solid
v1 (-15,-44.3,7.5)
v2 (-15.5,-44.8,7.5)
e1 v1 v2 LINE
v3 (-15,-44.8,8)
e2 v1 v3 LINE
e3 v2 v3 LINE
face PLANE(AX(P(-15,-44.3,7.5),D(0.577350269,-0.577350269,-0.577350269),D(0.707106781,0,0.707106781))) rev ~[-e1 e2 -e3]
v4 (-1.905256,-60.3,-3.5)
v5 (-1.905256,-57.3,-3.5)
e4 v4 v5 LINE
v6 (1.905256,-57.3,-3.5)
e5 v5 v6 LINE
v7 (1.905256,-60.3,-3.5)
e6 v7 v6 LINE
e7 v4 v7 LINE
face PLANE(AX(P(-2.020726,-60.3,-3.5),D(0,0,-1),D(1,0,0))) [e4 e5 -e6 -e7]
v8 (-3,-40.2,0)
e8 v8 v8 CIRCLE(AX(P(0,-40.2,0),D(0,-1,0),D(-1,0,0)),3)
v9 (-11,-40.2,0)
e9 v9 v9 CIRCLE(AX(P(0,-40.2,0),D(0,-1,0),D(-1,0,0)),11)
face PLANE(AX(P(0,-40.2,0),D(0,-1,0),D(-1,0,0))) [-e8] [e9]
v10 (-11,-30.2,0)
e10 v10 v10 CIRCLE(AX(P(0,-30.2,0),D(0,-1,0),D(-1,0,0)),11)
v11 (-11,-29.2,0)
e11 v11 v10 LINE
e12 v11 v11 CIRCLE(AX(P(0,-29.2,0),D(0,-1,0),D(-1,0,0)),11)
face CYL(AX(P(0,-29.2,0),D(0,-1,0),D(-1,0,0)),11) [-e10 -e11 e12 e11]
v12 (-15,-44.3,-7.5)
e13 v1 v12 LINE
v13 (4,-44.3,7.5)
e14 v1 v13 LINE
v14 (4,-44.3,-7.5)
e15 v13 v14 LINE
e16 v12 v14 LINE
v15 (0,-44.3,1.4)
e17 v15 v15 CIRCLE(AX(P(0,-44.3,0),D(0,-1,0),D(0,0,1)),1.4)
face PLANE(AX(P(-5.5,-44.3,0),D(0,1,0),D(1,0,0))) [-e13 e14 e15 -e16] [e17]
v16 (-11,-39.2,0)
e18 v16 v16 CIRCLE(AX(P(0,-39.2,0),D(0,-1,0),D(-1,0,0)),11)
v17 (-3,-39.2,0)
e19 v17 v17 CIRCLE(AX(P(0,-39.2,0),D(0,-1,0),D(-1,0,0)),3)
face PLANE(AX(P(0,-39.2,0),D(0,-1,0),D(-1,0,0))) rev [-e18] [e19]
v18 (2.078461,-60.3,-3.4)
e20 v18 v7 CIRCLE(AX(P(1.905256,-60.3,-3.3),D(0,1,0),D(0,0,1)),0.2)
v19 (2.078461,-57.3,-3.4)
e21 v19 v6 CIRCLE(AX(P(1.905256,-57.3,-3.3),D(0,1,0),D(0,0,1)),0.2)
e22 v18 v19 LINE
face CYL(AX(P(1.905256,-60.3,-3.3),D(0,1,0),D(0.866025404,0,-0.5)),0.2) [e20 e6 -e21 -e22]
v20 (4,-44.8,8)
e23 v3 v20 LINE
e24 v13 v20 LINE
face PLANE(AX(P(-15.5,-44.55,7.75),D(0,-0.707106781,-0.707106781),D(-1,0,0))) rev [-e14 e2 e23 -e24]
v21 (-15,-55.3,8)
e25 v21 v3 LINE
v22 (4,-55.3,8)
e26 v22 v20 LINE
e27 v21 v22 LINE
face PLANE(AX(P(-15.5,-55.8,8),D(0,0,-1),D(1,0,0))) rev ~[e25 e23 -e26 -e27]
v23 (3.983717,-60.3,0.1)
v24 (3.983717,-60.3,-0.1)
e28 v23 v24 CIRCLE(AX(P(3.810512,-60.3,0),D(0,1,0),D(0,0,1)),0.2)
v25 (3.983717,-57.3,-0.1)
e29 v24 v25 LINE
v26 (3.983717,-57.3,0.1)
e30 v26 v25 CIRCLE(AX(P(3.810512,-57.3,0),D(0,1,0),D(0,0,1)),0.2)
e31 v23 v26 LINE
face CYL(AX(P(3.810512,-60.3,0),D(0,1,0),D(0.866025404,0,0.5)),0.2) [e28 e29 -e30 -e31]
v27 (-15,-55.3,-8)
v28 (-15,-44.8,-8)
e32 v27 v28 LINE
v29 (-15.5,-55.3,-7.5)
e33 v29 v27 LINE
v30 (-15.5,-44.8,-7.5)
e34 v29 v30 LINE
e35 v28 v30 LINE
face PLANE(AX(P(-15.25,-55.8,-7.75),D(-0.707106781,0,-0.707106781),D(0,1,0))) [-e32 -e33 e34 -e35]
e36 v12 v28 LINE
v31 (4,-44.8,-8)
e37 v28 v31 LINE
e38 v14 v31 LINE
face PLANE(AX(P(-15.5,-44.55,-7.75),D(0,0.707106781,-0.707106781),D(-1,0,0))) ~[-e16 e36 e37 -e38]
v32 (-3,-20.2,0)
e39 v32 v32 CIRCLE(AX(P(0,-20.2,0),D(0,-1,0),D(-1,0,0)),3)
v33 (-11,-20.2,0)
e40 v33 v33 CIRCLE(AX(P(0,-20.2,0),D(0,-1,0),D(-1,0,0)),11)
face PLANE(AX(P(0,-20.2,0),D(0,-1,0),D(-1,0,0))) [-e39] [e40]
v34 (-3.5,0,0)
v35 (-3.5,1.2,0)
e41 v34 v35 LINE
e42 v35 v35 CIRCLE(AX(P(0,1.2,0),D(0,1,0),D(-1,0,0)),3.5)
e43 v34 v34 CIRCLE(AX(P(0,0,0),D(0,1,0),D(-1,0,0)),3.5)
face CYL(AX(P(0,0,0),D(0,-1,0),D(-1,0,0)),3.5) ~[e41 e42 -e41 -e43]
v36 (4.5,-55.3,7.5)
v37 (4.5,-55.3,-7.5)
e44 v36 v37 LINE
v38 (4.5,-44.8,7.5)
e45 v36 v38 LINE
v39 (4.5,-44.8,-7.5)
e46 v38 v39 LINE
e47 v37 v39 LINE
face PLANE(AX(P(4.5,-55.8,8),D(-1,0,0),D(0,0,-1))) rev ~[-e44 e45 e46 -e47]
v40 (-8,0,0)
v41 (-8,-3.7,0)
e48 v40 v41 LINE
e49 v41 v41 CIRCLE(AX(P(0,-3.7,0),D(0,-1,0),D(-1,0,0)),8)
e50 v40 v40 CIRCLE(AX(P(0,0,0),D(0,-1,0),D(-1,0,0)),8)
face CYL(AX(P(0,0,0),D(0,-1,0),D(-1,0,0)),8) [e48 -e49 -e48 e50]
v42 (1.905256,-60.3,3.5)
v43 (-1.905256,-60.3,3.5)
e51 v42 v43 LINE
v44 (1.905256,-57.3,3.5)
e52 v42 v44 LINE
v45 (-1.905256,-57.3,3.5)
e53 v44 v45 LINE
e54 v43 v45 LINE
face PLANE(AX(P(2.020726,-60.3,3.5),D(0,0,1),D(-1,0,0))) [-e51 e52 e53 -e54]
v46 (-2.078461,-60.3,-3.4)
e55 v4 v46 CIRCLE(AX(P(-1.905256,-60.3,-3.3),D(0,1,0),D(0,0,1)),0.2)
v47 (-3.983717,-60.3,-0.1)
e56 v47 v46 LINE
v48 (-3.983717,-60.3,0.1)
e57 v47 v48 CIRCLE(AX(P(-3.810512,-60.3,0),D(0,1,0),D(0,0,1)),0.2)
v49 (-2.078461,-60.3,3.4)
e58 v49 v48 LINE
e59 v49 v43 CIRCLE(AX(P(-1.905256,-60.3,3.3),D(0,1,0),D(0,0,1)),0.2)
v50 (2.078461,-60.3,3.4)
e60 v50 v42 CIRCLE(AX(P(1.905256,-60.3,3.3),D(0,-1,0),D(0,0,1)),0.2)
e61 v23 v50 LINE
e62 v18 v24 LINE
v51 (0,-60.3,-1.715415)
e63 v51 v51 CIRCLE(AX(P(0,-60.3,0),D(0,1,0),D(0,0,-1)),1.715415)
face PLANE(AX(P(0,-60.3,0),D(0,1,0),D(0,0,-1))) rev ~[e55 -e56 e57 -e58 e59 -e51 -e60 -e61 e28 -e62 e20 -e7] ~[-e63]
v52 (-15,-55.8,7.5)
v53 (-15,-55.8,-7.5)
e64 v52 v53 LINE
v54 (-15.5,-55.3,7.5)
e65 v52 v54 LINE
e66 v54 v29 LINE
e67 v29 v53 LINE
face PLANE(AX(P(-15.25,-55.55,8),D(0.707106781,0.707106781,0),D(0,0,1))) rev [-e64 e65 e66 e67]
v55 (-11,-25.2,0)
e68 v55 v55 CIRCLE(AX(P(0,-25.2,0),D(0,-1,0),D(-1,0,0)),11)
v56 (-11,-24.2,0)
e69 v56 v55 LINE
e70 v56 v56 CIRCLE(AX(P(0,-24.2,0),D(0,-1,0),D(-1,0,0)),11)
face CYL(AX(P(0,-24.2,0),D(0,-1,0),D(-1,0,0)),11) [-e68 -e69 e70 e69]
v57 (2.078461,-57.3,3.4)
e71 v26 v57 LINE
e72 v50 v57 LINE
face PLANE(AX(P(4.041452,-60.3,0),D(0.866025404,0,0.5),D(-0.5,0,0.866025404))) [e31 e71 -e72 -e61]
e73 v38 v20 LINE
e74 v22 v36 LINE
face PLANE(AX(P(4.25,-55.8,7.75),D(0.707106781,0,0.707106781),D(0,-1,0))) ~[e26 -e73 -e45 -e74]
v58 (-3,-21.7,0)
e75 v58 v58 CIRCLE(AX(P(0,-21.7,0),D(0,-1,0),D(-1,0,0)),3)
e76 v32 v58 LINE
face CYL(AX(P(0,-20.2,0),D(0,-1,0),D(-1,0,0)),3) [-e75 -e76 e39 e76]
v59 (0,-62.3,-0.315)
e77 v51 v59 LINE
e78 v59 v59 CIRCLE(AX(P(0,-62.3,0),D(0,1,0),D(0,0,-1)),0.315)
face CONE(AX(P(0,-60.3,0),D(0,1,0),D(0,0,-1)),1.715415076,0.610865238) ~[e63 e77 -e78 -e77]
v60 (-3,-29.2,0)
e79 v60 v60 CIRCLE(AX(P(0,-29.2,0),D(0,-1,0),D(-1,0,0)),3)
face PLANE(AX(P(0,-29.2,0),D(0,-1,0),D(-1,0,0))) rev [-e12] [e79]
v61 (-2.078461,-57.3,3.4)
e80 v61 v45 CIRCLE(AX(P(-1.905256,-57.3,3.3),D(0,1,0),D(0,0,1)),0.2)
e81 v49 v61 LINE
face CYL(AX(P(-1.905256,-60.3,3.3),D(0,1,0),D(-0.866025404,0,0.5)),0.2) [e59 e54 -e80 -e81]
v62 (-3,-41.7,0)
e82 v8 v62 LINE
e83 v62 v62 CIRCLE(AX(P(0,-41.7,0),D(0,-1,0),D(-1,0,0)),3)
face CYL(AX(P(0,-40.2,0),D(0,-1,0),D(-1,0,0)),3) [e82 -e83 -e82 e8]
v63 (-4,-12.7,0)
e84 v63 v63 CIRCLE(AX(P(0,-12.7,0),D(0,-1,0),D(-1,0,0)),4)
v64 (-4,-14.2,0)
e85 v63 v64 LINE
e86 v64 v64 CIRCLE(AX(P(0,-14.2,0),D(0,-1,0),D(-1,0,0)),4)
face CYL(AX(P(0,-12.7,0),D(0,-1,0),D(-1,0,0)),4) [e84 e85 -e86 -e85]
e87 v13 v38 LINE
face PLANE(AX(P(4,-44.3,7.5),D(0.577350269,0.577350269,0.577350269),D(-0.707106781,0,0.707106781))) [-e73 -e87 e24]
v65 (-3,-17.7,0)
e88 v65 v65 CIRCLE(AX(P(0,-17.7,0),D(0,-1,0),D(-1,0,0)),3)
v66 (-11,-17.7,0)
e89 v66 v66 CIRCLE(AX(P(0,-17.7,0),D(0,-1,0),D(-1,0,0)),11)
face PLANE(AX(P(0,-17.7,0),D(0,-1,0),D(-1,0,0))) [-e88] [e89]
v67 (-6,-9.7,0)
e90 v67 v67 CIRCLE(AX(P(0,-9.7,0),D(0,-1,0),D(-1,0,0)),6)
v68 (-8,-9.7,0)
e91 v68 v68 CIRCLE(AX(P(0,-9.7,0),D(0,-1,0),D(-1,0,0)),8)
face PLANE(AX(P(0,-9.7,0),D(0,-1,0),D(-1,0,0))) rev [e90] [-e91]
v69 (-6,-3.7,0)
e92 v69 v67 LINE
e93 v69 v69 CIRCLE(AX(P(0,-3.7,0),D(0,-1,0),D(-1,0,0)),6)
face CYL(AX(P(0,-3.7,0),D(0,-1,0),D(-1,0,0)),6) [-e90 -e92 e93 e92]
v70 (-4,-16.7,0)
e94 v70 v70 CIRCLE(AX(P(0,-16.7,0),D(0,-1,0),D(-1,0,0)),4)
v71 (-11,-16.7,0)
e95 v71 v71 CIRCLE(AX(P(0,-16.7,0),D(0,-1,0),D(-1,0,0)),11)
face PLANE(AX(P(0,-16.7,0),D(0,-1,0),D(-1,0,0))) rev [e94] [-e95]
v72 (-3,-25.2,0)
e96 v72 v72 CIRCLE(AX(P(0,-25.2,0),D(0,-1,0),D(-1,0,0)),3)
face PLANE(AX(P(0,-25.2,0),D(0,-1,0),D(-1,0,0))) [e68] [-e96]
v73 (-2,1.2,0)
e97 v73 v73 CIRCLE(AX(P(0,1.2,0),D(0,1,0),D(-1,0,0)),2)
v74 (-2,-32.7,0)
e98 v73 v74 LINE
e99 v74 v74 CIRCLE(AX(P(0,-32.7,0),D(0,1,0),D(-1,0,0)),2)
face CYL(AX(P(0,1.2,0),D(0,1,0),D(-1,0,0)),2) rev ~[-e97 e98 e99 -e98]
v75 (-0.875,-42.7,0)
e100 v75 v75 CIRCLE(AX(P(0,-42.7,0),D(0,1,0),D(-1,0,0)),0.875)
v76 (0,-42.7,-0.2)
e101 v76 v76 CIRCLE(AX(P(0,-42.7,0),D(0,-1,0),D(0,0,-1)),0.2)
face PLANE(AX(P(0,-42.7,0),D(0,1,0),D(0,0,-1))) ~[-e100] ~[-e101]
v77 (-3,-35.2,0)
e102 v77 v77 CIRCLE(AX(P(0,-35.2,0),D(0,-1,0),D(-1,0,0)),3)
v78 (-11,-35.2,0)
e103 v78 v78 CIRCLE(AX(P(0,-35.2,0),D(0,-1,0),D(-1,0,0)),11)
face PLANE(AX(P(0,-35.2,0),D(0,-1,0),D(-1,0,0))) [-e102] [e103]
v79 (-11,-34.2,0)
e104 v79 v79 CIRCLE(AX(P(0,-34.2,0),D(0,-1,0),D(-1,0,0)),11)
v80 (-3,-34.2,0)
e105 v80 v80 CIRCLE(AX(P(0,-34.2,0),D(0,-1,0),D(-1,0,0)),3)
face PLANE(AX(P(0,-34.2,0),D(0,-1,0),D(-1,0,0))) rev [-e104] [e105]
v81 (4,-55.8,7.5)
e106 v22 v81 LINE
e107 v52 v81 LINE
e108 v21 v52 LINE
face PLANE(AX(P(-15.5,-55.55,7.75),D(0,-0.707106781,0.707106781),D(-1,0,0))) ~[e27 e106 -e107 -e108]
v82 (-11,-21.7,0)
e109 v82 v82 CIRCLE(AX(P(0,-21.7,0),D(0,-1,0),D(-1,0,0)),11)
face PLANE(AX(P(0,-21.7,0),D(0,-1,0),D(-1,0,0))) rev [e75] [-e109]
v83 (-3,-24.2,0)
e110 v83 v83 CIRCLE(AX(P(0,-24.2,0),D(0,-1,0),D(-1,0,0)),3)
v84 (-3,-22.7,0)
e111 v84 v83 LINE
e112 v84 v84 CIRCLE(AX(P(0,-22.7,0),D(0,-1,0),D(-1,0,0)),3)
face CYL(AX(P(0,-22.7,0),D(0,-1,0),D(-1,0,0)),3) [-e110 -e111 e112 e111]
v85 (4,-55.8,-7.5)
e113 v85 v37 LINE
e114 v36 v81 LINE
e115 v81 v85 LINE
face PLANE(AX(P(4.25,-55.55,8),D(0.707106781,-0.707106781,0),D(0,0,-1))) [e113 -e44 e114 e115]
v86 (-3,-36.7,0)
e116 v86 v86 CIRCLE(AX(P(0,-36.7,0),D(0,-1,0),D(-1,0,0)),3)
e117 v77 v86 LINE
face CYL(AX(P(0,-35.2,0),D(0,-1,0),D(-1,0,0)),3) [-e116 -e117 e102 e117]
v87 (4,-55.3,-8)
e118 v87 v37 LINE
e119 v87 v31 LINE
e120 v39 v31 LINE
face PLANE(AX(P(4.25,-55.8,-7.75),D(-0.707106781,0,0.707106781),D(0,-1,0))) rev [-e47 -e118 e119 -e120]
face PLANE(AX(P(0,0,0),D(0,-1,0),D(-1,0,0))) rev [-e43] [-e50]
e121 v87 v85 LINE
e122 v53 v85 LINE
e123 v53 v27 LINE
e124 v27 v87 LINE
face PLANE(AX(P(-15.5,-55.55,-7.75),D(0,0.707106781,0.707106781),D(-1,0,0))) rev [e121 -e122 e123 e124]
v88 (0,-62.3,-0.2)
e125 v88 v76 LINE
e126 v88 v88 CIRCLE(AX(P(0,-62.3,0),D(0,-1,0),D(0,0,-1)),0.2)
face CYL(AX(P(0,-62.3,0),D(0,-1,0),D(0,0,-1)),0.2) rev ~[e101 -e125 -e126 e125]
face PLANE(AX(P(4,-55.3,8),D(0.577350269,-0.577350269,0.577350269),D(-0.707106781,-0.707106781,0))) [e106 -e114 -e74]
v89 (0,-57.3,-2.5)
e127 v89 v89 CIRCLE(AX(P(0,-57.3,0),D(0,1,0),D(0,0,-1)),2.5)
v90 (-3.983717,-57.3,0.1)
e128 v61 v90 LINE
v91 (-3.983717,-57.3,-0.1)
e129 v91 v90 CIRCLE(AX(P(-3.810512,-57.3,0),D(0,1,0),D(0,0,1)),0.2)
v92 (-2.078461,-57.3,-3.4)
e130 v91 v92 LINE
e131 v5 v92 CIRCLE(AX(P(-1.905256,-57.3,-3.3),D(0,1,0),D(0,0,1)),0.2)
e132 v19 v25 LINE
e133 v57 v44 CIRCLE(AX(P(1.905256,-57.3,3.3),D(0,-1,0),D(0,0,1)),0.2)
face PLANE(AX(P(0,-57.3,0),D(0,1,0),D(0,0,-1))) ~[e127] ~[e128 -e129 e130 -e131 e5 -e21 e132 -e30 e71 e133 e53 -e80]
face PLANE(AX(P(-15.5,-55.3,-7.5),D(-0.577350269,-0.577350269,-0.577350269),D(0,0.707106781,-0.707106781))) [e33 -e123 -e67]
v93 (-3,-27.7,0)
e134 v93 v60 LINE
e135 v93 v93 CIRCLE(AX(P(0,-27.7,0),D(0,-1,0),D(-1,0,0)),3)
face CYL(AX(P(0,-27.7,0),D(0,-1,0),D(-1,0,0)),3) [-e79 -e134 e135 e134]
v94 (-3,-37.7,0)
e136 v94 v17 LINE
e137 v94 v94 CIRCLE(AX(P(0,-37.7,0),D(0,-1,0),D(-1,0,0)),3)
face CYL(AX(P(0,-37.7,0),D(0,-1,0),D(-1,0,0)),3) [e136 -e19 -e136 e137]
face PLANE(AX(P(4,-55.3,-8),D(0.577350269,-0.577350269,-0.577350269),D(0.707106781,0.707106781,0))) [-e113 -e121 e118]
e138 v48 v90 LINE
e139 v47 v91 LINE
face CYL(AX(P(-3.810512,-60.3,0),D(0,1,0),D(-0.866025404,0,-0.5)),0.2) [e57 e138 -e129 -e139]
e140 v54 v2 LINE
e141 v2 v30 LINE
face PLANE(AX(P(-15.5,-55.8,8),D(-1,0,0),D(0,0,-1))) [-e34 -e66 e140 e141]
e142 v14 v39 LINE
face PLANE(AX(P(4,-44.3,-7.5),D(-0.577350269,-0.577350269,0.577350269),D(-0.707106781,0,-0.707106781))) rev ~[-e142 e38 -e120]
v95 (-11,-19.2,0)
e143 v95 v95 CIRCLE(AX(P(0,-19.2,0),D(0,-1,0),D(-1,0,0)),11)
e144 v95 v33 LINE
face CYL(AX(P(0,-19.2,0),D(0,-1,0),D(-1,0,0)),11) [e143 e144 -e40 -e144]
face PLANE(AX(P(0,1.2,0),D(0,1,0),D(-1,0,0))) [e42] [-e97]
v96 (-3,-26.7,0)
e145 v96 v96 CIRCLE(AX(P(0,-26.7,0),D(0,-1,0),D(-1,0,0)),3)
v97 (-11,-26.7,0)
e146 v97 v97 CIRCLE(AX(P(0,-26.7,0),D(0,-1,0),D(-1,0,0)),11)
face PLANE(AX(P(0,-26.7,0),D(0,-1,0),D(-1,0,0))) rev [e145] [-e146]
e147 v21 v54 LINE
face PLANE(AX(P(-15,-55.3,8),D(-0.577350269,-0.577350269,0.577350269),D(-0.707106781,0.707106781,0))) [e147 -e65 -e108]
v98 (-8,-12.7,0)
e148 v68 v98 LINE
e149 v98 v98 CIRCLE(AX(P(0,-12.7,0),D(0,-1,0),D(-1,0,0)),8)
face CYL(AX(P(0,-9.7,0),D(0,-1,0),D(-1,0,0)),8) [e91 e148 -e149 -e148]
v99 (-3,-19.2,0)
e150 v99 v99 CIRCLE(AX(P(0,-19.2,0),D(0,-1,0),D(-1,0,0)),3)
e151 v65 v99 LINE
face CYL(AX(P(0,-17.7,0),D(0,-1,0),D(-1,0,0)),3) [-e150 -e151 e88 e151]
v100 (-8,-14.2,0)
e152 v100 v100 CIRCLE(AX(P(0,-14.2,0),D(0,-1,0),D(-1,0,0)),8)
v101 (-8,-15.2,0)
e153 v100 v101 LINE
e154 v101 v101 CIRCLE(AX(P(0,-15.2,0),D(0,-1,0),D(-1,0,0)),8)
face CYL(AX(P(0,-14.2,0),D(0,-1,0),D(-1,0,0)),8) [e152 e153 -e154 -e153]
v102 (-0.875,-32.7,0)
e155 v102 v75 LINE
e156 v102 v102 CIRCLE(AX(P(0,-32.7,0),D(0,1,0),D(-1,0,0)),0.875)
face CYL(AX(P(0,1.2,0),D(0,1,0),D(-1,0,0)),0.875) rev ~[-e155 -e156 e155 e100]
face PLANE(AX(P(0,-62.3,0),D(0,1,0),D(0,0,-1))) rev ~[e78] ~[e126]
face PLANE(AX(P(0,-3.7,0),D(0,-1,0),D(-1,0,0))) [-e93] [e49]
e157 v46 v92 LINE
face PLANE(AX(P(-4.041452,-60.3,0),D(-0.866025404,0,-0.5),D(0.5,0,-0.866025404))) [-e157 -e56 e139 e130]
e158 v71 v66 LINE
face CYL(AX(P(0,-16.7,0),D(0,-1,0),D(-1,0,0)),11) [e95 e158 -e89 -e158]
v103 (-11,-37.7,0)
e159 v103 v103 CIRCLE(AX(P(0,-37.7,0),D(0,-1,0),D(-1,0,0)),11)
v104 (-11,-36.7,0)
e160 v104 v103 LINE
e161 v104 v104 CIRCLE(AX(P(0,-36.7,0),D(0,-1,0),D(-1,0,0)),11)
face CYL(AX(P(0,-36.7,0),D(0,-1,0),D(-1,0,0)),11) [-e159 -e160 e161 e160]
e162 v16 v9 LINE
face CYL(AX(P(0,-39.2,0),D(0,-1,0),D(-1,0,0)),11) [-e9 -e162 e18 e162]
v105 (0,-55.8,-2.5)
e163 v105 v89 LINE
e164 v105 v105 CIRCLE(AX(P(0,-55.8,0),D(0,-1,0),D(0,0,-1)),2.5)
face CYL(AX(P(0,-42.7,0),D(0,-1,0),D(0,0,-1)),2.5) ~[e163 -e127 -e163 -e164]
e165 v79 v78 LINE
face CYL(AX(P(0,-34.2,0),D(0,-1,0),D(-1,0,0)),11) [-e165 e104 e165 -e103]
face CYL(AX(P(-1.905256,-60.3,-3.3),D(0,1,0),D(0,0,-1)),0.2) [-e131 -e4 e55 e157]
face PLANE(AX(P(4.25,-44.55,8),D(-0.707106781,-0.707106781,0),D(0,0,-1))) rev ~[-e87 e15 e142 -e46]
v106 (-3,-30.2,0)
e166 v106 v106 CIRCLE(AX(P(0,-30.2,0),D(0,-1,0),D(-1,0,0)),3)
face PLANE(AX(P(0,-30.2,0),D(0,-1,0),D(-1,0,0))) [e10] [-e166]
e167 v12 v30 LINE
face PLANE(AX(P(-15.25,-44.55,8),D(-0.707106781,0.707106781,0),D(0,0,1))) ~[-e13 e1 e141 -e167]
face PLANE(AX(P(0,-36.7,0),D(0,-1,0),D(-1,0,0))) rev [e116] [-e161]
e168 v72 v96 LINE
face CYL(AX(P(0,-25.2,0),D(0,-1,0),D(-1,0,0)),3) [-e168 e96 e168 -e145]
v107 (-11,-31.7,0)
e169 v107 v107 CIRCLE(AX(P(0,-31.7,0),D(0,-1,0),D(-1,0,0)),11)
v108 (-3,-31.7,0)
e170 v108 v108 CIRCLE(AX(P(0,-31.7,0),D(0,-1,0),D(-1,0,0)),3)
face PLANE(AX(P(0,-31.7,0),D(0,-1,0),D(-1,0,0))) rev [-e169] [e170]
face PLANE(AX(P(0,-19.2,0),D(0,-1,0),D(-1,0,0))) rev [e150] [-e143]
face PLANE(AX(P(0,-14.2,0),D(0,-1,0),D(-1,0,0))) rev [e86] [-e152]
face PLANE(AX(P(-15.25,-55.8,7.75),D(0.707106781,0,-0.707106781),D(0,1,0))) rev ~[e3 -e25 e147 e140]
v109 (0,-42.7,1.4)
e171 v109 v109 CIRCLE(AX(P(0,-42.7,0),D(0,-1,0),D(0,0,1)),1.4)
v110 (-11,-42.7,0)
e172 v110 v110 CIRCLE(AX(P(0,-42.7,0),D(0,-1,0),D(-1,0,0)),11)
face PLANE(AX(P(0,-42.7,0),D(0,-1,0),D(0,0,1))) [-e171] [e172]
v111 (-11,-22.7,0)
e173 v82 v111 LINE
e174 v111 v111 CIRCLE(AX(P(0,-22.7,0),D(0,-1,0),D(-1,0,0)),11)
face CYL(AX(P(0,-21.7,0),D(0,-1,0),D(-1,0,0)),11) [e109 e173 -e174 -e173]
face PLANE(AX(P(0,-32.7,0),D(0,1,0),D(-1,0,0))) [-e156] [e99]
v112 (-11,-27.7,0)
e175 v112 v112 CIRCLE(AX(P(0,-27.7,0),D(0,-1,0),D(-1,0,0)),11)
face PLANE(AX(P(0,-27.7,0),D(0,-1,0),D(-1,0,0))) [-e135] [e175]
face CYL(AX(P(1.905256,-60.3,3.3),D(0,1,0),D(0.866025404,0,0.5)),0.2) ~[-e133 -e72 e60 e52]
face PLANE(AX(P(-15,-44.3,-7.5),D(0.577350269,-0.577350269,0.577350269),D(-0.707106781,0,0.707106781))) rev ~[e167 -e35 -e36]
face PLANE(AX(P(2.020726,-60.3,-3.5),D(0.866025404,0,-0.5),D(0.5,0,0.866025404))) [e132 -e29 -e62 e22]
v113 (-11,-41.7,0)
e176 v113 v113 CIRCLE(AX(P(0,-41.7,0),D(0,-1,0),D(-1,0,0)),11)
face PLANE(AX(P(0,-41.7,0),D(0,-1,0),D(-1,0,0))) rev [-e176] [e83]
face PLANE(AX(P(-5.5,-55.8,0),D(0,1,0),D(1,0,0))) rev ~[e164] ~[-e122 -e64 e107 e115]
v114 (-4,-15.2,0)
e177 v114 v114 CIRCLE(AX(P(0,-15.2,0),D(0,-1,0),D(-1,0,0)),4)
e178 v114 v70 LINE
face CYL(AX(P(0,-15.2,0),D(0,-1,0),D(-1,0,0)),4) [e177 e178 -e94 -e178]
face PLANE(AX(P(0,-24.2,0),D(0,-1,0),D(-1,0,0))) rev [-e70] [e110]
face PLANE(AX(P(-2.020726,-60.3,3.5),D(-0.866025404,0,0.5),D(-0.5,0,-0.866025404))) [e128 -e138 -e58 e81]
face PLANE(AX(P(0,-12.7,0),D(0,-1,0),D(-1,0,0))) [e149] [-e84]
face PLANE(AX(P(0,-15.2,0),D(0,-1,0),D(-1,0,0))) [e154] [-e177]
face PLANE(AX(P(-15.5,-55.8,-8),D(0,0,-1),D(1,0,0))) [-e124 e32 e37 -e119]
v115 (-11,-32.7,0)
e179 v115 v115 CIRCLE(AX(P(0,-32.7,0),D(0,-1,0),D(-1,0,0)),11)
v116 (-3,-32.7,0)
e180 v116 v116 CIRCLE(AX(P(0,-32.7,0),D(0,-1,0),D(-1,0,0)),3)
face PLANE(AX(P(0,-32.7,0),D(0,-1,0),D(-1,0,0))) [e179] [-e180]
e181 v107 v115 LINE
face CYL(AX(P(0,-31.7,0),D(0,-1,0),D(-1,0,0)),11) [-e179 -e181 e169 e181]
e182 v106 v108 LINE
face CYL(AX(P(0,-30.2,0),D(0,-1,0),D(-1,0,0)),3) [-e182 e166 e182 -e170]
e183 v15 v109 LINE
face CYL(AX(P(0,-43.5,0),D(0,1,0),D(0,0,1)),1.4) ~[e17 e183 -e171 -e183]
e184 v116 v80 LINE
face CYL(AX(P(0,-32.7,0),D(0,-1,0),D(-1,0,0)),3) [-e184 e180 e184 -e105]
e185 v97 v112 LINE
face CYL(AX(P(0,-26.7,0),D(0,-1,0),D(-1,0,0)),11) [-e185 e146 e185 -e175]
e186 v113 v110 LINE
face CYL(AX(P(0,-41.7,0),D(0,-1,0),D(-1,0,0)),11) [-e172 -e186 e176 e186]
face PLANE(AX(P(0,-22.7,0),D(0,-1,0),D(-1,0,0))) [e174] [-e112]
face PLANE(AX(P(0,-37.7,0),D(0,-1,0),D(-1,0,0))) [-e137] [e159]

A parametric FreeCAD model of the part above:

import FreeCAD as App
import Part
import Sketcher
from FreeCAD import Vector
Q = App.Units.Quantity


def edges_at(feature, points):
    """Names of the edges that pass closest to the given points."""
    edges = feature.Shape.Edges
    near = lambda p: min(range(len(edges)), key=lambda i: edges[i].distToShape(Part.Vertex(*p))[0])
    return sorted({f"Edge{near(p) + 1}" for p in points})

doc = App.newDocument("Part")
body = doc.addObject("PartDesign::Body", "Body")

# Sketch on XY plane
sketch1 = body.newObject("Sketcher::SketchObject", "Sketch")
sketch1.AttachmentSupport = (doc.getObject("XY_Plane"), [""])
sketch1.MapMode = "FlatFace"
sketch1.addGeometry([
    Part.LineSegment(Vector(0, 0, 0), Vector(-8, 0, 0)),  # 0
    Part.LineSegment(Vector(-8, 0, 0), Vector(-8, -3.7, 0)),  # 1
    Part.LineSegment(Vector(-8, -3.7, 0), Vector(-6, -3.7, 0)),  # 2
    Part.LineSegment(Vector(-6, -3.7, 0), Vector(-6, -9.7, 0)),  # 3
    Part.LineSegment(Vector(-6, -9.7, 0), Vector(-8, -9.7, 0)),  # 4
    Part.LineSegment(Vector(-8, -9.7, 0), Vector(-8, -12.7, 0)),  # 5
    Part.LineSegment(Vector(-8, -12.7, 0), Vector(-4, -12.7, 0)),  # 6
    Part.LineSegment(Vector(-4, -12.7, 0), Vector(-4, -14.2, 0)),  # 7
    Part.LineSegment(Vector(-4, -14.2, 0), Vector(-8, -14.2, 0)),  # 8
    Part.LineSegment(Vector(-8, -14.2, 0), Vector(-8, -15.2, 0)),  # 9
    Part.LineSegment(Vector(-8, -15.2, 0), Vector(-4, -15.2, 0)),  # 10
    Part.LineSegment(Vector(-4, -15.2, 0), Vector(-4, -16.7, 0)),  # 11
    Part.LineSegment(Vector(-4, -16.7, 0), Vector(-11, -16.7, 0)),  # 12
    Part.LineSegment(Vector(-11, -16.7, 0), Vector(-11, -17.7, 0)),  # 13
    Part.LineSegment(Vector(-11, -17.7, 0), Vector(-3, -17.7, 0)),  # 14
    Part.LineSegment(Vector(-3, -17.7, 0), Vector(-3, -19.2, 0)),  # 15
    Part.LineSegment(Vector(-3, -19.2, 0), Vector(-11, -19.2, 0)),  # 16
    Part.LineSegment(Vector(-11, -19.2, 0), Vector(-11, -20.2, 0)),  # 17
    Part.LineSegment(Vector(-11, -20.2, 0), Vector(-3, -20.2, 0)),  # 18
    Part.LineSegment(Vector(-3, -20.2, 0), Vector(-3, -21.7, 0)),  # 19
    Part.LineSegment(Vector(-3, -21.7, 0), Vector(-11, -21.7, 0)),  # 20
    Part.LineSegment(Vector(-11, -21.7, 0), Vector(-11, -22.7, 0)),  # 21
    Part.LineSegment(Vector(-11, -22.7, 0), Vector(-3, -22.7, 0)),  # 22
    Part.LineSegment(Vector(-3, -22.7, 0), Vector(-3, -24.2, 0)),  # 23
    Part.LineSegment(Vector(-3, -24.2, 0), Vector(-11, -24.2, 0)),  # 24
    Part.LineSegment(Vector(-11, -24.2, 0), Vector(-11, -25.2, 0)),  # 25
    Part.LineSegment(Vector(-11, -25.2, 0), Vector(-3, -25.2, 0)),  # 26
    Part.LineSegment(Vector(-3, -25.2, 0), Vector(-3, -26.7, 0)),  # 27
    Part.LineSegment(Vector(-3, -26.7, 0), Vector(-11, -26.7, 0)),  # 28
    Part.LineSegment(Vector(-11, -26.7, 0), Vector(-11, -27.7, 0)),  # 29
    Part.LineSegment(Vector(-11, -27.7, 0), Vector(-3, -27.7, 0)),  # 30
    Part.LineSegment(Vector(-3, -27.7, 0), Vector(-3, -29.2, 0)),  # 31
    Part.LineSegment(Vector(-3, -29.2, 0), Vector(-11, -29.2, 0)),  # 32
    Part.LineSegment(Vector(-11, -29.2, 0), Vector(-11, -30.2, 0)),  # 33
    Part.LineSegment(Vector(-11, -30.2, 0), Vector(-3, -30.2, 0)),  # 34
    Part.LineSegment(Vector(-3, -30.2, 0), Vector(-3, -31.7, 0)),  # 35
    Part.LineSegment(Vector(-3, -31.7, 0), Vector(-11, -31.7, 0)),  # 36
    Part.LineSegment(Vector(-11, -31.7, 0), Vector(-11, -32.7, 0)),  # 37
    Part.LineSegment(Vector(-11, -32.7, 0), Vector(-3, -32.7, 0)),  # 38
    Part.LineSegment(Vector(-3, -32.7, 0), Vector(-3, -34.2, 0)),  # 39
    Part.LineSegment(Vector(-3, -34.2, 0), Vector(-11, -34.2, 0)),  # 40
    Part.LineSegment(Vector(-11, -34.2, 0), Vector(-11, -35.2, 0)),  # 41
    Part.LineSegment(Vector(-11, -35.2, 0), Vector(-3, -35.2, 0)),  # 42
    Part.LineSegment(Vector(-3, -35.2, 0), Vector(-3, -36.7, 0)),  # 43
    Part.LineSegment(Vector(-3, -36.7, 0), Vector(-11, -36.7, 0)),  # 44
    Part.LineSegment(Vector(-11, -36.7, 0), Vector(-11, -37.7, 0)),  # 45
    Part.LineSegment(Vector(-11, -37.7, 0), Vector(-3, -37.7, 0)),  # 46
    Part.LineSegment(Vector(-3, -37.7, 0), Vector(-3, -39.2, 0)),  # 47
    Part.LineSegment(Vector(-3, -39.2, 0), Vector(-11, -39.2, 0)),  # 48
    Part.LineSegment(Vector(-11, -39.2, 0), Vector(-11, -40.2, 0)),  # 49
    Part.LineSegment(Vector(-11, -40.2, 0), Vector(-3, -40.2, 0)),  # 50
    Part.LineSegment(Vector(-3, -40.2, 0), Vector(-3, -41.7, 0)),  # 51
    Part.LineSegment(Vector(-3, -41.7, 0), Vector(-11, -41.7, 0)),  # 52
    Part.LineSegment(Vector(-11, -41.7, 0), Vector(-11, -42.7, 0)),  # 53
    Part.LineSegment(Vector(-11, -42.7, 0), Vector(0, -42.7, 0)),  # 54
    Part.LineSegment(Vector(0, -42.7, 0), Vector(0, 0, 0)),  # 55
], False)
sketch1.addConstraint([
    Sketcher.Constraint("Coincident", 0, 2, 1, 1),
    Sketcher.Constraint("Coincident", 1, 2, 2, 1),
    Sketcher.Constraint("Coincident", 2, 2, 3, 1),
    Sketcher.Constraint("Coincident", 3, 2, 4, 1),
    Sketcher.Constraint("Coincident", 4, 2, 5, 1),
    Sketcher.Constraint("Coincident", 5, 2, 6, 1),
    Sketcher.Constraint("Coincident", 6, 2, 7, 1),
    Sketcher.Constraint("Coincident", 7, 2, 8, 1),
    Sketcher.Constraint("Coincident", 8, 2, 9, 1),
    Sketcher.Constraint("Coincident", 9, 2, 10, 1),
    Sketcher.Constraint("Coincident", 10, 2, 11, 1),
    Sketcher.Constraint("Coincident", 11, 2, 12, 1),
    Sketcher.Constraint("Coincident", 12, 2, 13, 1),
    Sketcher.Constraint("Coincident", 13, 2, 14, 1),
    Sketcher.Constraint("Coincident", 14, 2, 15, 1),
    Sketcher.Constraint("Coincident", 15, 2, 16, 1),
    Sketcher.Constraint("Coincident", 16, 2, 17, 1),
    Sketcher.Constraint("Coincident", 17, 2, 18, 1),
    Sketcher.Constraint("Coincident", 18, 2, 19, 1),
    Sketcher.Constraint("Coincident", 19, 2, 20, 1),
    Sketcher.Constraint("Coincident", 20, 2, 21, 1),
    Sketcher.Constraint("Coincident", 21, 2, 22, 1),
    Sketcher.Constraint("Coincident", 22, 2, 23, 1),
    Sketcher.Constraint("Coincident", 23, 2, 24, 1),
    Sketcher.Constraint("Coincident", 24, 2, 25, 1),
    Sketcher.Constraint("Coincident", 25, 2, 26, 1),
    Sketcher.Constraint("Coincident", 26, 2, 27, 1),
    Sketcher.Constraint("Coincident", 27, 2, 28, 1),
    Sketcher.Constraint("Coincident", 28, 2, 29, 1),
    Sketcher.Constraint("Coincident", 29, 2, 30, 1),
    Sketcher.Constraint("Coincident", 30, 2, 31, 1),
    Sketcher.Constraint("Coincident", 31, 2, 32, 1),
    Sketcher.Constraint("Coincident", 32, 2, 33, 1),
    Sketcher.Constraint("Coincident", 33, 2, 34, 1),
    Sketcher.Constraint("Coincident", 34, 2, 35, 1),
    Sketcher.Constraint("Coincident", 35, 2, 36, 1),
    Sketcher.Constraint("Coincident", 36, 2, 37, 1),
    Sketcher.Constraint("Coincident", 37, 2, 38, 1),
    Sketcher.Constraint("Coincident", 38, 2, 39, 1),
    Sketcher.Constraint("Coincident", 39, 2, 40, 1),
    Sketcher.Constraint("Coincident", 40, 2, 41, 1),
    Sketcher.Constraint("Coincident", 41, 2, 42, 1),
    Sketcher.Constraint("Coincident", 42, 2, 43, 1),
    Sketcher.Constraint("Coincident", 43, 2, 44, 1),
    Sketcher.Constraint("Coincident", 44, 2, 45, 1),
    Sketcher.Constraint("Coincident", 45, 2, 46, 1),
    Sketcher.Constraint("Coincident", 46, 2, 47, 1),
    Sketcher.Constraint("Coincident", 47, 2, 48, 1),
    Sketcher.Constraint("Coincident", 48, 2, 49, 1),
    Sketcher.Constraint("Coincident", 49, 2, 50, 1),
    Sketcher.Constraint("Coincident", 50, 2, 51, 1),
    Sketcher.Constraint("Coincident", 51, 2, 52, 1),
    Sketcher.Constraint("Coincident", 52, 2, 53, 1),
    Sketcher.Constraint("Coincident", 53, 2, 54, 1),
    Sketcher.Constraint("Coincident", 54, 2, 55, 1),
    Sketcher.Constraint("Coincident", 55, 2, 0, 1),
    Sketcher.Constraint("Horizontal", 0),
    Sketcher.Constraint("Vertical", 1),
    Sketcher.Constraint("Horizontal", 2),
    Sketcher.Constraint("Vertical", 3),
    Sketcher.Constraint("Horizontal", 4),
    Sketcher.Constraint("Vertical", 5),
    Sketcher.Constraint("Horizontal", 6),
    Sketcher.Constraint("Vertical", 7),
    Sketcher.Constraint("Horizontal", 8),
    Sketcher.Constraint("Vertical", 9),
    Sketcher.Constraint("Horizontal", 10),
    Sketcher.Constraint("Vertical", 11),
    Sketcher.Constraint("Horizontal", 12),
    Sketcher.Constraint("Vertical", 13),
    Sketcher.Constraint("Horizontal", 14),
    Sketcher.Constraint("Vertical", 15),
    Sketcher.Constraint("Horizontal", 16),
    Sketcher.Constraint("Vertical", 17),
    Sketcher.Constraint("Horizontal", 18),
    Sketcher.Constraint("Vertical", 19),
    Sketcher.Constraint("Horizontal", 20),
    Sketcher.Constraint("Vertical", 21),
    Sketcher.Constraint("Horizontal", 22),
    Sketcher.Constraint("Vertical", 23),
    Sketcher.Constraint("Horizontal", 24),
    Sketcher.Constraint("Vertical", 25),
    Sketcher.Constraint("Horizontal", 26),
    Sketcher.Constraint("Vertical", 27),
    Sketcher.Constraint("Horizontal", 28),
    Sketcher.Constraint("Vertical", 29),
    Sketcher.Constraint("Horizontal", 30),
    Sketcher.Constraint("Vertical", 31),
    Sketcher.Constraint("Horizontal", 32),
    Sketcher.Constraint("Vertical", 33),
    Sketcher.Constraint("Horizontal", 34),
    Sketcher.Constraint("Vertical", 35),
    Sketcher.Constraint("Horizontal", 36),
    Sketcher.Constraint("Vertical", 37),
    Sketcher.Constraint("Horizontal", 38),
    Sketcher.Constraint("Vertical", 39),
    Sketcher.Constraint("Horizontal", 40),
    Sketcher.Constraint("Vertical", 41),
    Sketcher.Constraint("Horizontal", 42),
    Sketcher.Constraint("Vertical", 43),
    Sketcher.Constraint("Horizontal", 44),
    Sketcher.Constraint("Vertical", 45),
    Sketcher.Constraint("Horizontal", 46),
    Sketcher.Constraint("Vertical", 47),
    Sketcher.Constraint("Horizontal", 48),
    Sketcher.Constraint("Vertical", 49),
    Sketcher.Constraint("Horizontal", 50),
    Sketcher.Constraint("Vertical", 51),
    Sketcher.Constraint("Horizontal", 52),
    Sketcher.Constraint("Vertical", 53),
    Sketcher.Constraint("Horizontal", 54),
    Sketcher.Constraint("Vertical", 55),
    Sketcher.Constraint("Coincident", 55, 2, -1, 1),
    Sketcher.Constraint("Vertical", 1, 2, 4, 2),
    Sketcher.Constraint("Vertical", 5, 2, 8, 2),
    Sketcher.Constraint("Vertical", 7, 2, 10, 2),
    Sketcher.Constraint("Vertical", 13, 2, 16, 2),
    Sketcher.Constraint("Vertical", 15, 2, 18, 2),
    Sketcher.Constraint("Vertical", 17, 2, 20, 2),
    Sketcher.Constraint("Vertical", 19, 2, 22, 2),
    Sketcher.Constraint("Vertical", 21, 2, 24, 2),
    Sketcher.Constraint("Vertical", 23, 2, 26, 2),
    Sketcher.Constraint("Vertical", 25, 2, 28, 2),
    Sketcher.Constraint("Vertical", 27, 2, 30, 2),
    Sketcher.Constraint("Vertical", 29, 2, 32, 2),
    Sketcher.Constraint("Vertical", 31, 2, 34, 2),
    Sketcher.Constraint("Vertical", 33, 2, 36, 2),
    Sketcher.Constraint("Vertical", 35, 2, 38, 2),
    Sketcher.Constraint("Vertical", 37, 2, 40, 2),
    Sketcher.Constraint("Vertical", 39, 2, 42, 2),
    Sketcher.Constraint("Vertical", 41, 2, 44, 2),
    Sketcher.Constraint("Vertical", 43, 2, 46, 2),
    Sketcher.Constraint("Vertical", 45, 2, 48, 2),
    Sketcher.Constraint("Vertical", 47, 2, 50, 2),
    Sketcher.Constraint("Vertical", 49, 2, 52, 2),
    Sketcher.Constraint("Equal", 0, 14),
    Sketcher.Constraint("Equal", 7, 11),
    Sketcher.Constraint("Equal", 9, 13),
    Sketcher.Constraint("Equal", 11, 15),
    Sketcher.Constraint("Equal", 13, 17),
    Sketcher.Constraint("Equal", 15, 19),
    Sketcher.Constraint("Equal", 17, 21),
    Sketcher.Constraint("Equal", 19, 23),
    Sketcher.Constraint("Equal", 21, 25),
    Sketcher.Constraint("Equal", 23, 27),
    Sketcher.Constraint("Equal", 25, 29),
    Sketcher.Constraint("Equal", 27, 31),
    Sketcher.Constraint("Equal", 29, 33),
    Sketcher.Constraint("Equal", 31, 35),
    Sketcher.Constraint("Equal", 33, 37),
    Sketcher.Constraint("Equal", 35, 39),
    Sketcher.Constraint("Equal", 37, 41),
    Sketcher.Constraint("Equal", 39, 43),
    Sketcher.Constraint("Equal", 41, 45),
    Sketcher.Constraint("Equal", 43, 47),
    Sketcher.Constraint("Equal", 45, 49),
    Sketcher.Constraint("Equal", 47, 51),
    Sketcher.Constraint("Equal", 49, 53),
    Sketcher.Constraint("DistanceX", 0, 2, 0, 1, 8.0),
    Sketcher.Constraint("DistanceX", 2, 1, 2, 2, 2.0),
    Sketcher.Constraint("DistanceX", 6, 1, 6, 2, 4.0),
    Sketcher.Constraint("DistanceX", 12, 2, 12, 1, 7.0),
    Sketcher.Constraint("DistanceY", 3, 2, 3, 1, 6.0),
    Sketcher.Constraint("DistanceY", 5, 2, 5, 1, 3.0),
    Sketcher.Constraint("DistanceY", 9, 2, 9, 1, 1.0),
    Sketcher.Constraint("DistanceY", 1, 2, 1, 1, 3.7),
    Sketcher.Constraint("DistanceY", 7, 2, 7, 1, 1.5),
])
revolution = body.newObject("PartDesign::Revolution", "Revolution")
revolution.Profile = sketch1
revolution.ReferenceAxis = (sketch1, ["V_Axis"])
revolution.Angle = 360

# Sketch on XZ plane
sketch2 = body.newObject("Sketcher::SketchObject", "Sketch001")
sketch2.AttachmentSupport = (doc.getObject("XZ_Plane"), [""])
sketch2.MapMode = "FlatFace"
sketch2.addGeometry(Part.Circle(Vector(0, 0, 0), Vector(0, 0, 1), 3.5), False)
sketch2.addConstraint([
    Sketcher.Constraint("Coincident", 0, 3, -1, 1),
    Sketcher.Constraint("Diameter", 0, 7.0),
])
pad1 = body.newObject("PartDesign::Pad", "Pad")
pad1.Profile = sketch2
pad1.Length = 1.2
pad1.Reversed = True

# Sketch on XZ plane
sketch3 = body.newObject("Sketcher::SketchObject", "Sketch002")
sketch3.AttachmentSupport = (doc.getObject("XZ_Plane"), [""])
sketch3.MapMode = "FlatFace"
sketch3.AttachmentOffset = App.Placement(Vector(0, 0, -1.2), App.Rotation())
sketch3.addGeometry(Part.Circle(Vector(0, 0, 0), Vector(0, 0, 1), 0.875), False)
sketch3.addConstraint([
    Sketcher.Constraint("Coincident", 0, 3, -1, 1),
    Sketcher.Constraint("Diameter", 0, 1.75),
])
pocket1 = body.newObject("PartDesign::Pocket", "Pocket")
pocket1.Profile = sketch3
pocket1.Type = "ThroughAll"
pocket1.Reversed = True

# Sketch on XZ plane
sketch4 = body.newObject("Sketcher::SketchObject", "Sketch003")
sketch4.AttachmentSupport = (doc.getObject("XZ_Plane"), [""])
sketch4.MapMode = "FlatFace"
sketch4.AttachmentOffset = App.Placement(Vector(0, 0, -1.2), App.Rotation())
sketch4.addGeometry(Part.Circle(Vector(0, 0, 0), Vector(0, 0, 1), 2), False)
sketch4.addConstraint([
    Sketcher.Constraint("Coincident", 0, 3, -1, 1),
    Sketcher.Constraint("Diameter", 0, 4.0),
])
pocket2 = body.newObject("PartDesign::Pocket", "Pocket001")
pocket2.Profile = sketch4
pocket2.Length = 33.9
pocket2.Reversed = True

# Sketch on XY plane
sketch5 = body.newObject("Sketcher::SketchObject", "Sketch004")
sketch5.AttachmentSupport = (doc.getObject("XY_Plane"), [""])
sketch5.MapMode = "FlatFace"
sketch5.addGeometry([
    Part.LineSegment(Vector(0, -42.7, 0), Vector(-2.5, -42.7, 0)),  # 0
    Part.LineSegment(Vector(-2.5, -42.7, 0), Vector(-2.5, -57.3, 0)),  # 1
    Part.LineSegment(Vector(-2.5, -57.3, 0), Vector(-5, -57.3, 0)),  # 2
    Part.LineSegment(Vector(-5, -57.3, 0), Vector(-5, -60.3, 0)),  # 3
    Part.LineSegment(Vector(-5, -60.3, 0), Vector(-1.715415, -60.3, 0)),  # 4
    Part.LineSegment(Vector(-1.715415, -60.3, 0), Vector(-0.315, -62.3, 0)),  # 5
    Part.LineSegment(Vector(-0.315, -62.3, 0), Vector(0, -62.3, 0)),  # 6
    Part.LineSegment(Vector(0, -62.3, 0), Vector(0, -42.7, 0)),  # 7
], False)
sketch5.addConstraint([
    Sketcher.Constraint("Coincident", 0, 2, 1, 1),
    Sketcher.Constraint("Coincident", 1, 2, 2, 1),
    Sketcher.Constraint("Coincident", 2, 2, 3, 1),
    Sketcher.Constraint("Coincident", 3, 2, 4, 1),
    Sketcher.Constraint("Coincident", 4, 2, 5, 1),
    Sketcher.Constraint("Coincident", 5, 2, 6, 1),
    Sketcher.Constraint("Coincident", 6, 2, 7, 1),
    Sketcher.Constraint("Coincident", 7, 2, 0, 1),
    Sketcher.Constraint("Horizontal", 0),
    Sketcher.Constraint("Vertical", 1),
    Sketcher.Constraint("Horizontal", 2),
    Sketcher.Constraint("Vertical", 3),
    Sketcher.Constraint("Horizontal", 4),
    Sketcher.Constraint("Horizontal", 6),
    Sketcher.Constraint("Vertical", 7),
    Sketcher.Constraint("PointOnObject", 6, 2, -2),
    Sketcher.Constraint("Equal", 0, 2),
    Sketcher.Constraint("DistanceY", 3, 2, 3, 1, 3.0),
    Sketcher.Constraint("Angle", 5, Q("-55 deg")),
    Sketcher.Constraint("DistanceX", 0, 2, 0, 1, 2.5),
    Sketcher.Constraint("DistanceY", 1, 2, 1, 1, 14.6),
    Sketcher.Constraint("DistanceY", 7, 1, 7, 2, 19.6),
    Sketcher.Constraint("DistanceY", 0, 2, -1, 1, 42.7),
    Sketcher.Constraint("DistanceX", 6, 1, 6, 2, 0.315),
])
revolution2 = body.newObject("PartDesign::Revolution", "Revolution001")
revolution2.Profile = sketch5
revolution2.ReferenceAxis = (sketch5, ["V_Axis"])
revolution2.Angle = 360

# Sketch on XZ plane
sketch6 = body.newObject("Sketcher::SketchObject", "Sketch005")
sketch6.AttachmentSupport = (doc.getObject("XZ_Plane"), [""])
sketch6.MapMode = "FlatFace"
sketch6.AttachmentOffset = App.Placement(Vector(0, 0, 60.3), App.Rotation())
sketch6.addGeometry([
    Part.LineSegment(Vector(-19.071, 19.071, 0), Vector(-19.071, -19.071, 0)),  # 0
    Part.LineSegment(Vector(-19.071, -19.071, 0), Vector(19.071, -19.071, 0)),  # 1
    Part.LineSegment(Vector(19.071, -19.071, 0), Vector(19.071, 19.071, 0)),  # 2
    Part.LineSegment(Vector(19.071, 19.071, 0), Vector(-19.071, 19.071, 0)),  # 3
    Part.LineSegment(Vector(-2.020726, 3.5, 0), Vector(2.020726, 3.5, 0)),  # 4
    Part.LineSegment(Vector(2.020726, 3.5, 0), Vector(4.041452, 0, 0)),  # 5
    Part.LineSegment(Vector(4.041452, 0, 0), Vector(2.020726, -3.5, 0)),  # 6
    Part.LineSegment(Vector(2.020726, -3.5, 0), Vector(-2.020726, -3.5, 0)),  # 7
    Part.LineSegment(Vector(-2.020726, -3.5, 0), Vector(-4.041452, 0, 0)),  # 8
    Part.LineSegment(Vector(-4.041452, 0, 0), Vector(-2.020726, 3.5, 0)),  # 9
], False)
sketch6.addConstraint([
    Sketcher.Constraint("Coincident", 0, 2, 1, 1),
    Sketcher.Constraint("Coincident", 1, 2, 2, 1),
    Sketcher.Constraint("Coincident", 2, 2, 3, 1),
    Sketcher.Constraint("Coincident", 3, 2, 0, 1),
    Sketcher.Constraint("Coincident", 4, 2, 5, 1),
    Sketcher.Constraint("Coincident", 5, 2, 6, 1),
    Sketcher.Constraint("Coincident", 6, 2, 7, 1),
    Sketcher.Constraint("Coincident", 7, 2, 8, 1),
    Sketcher.Constraint("Coincident", 8, 2, 9, 1),
    Sketcher.Constraint("Coincident", 9, 2, 4, 1),
    Sketcher.Constraint("Vertical", 0),
    Sketcher.Constraint("Horizontal", 1),
    Sketcher.Constraint("Vertical", 2),
    Sketcher.Constraint("Horizontal", 3),
    Sketcher.Constraint("Horizontal", 4),
    Sketcher.Constraint("Horizontal", 7),
    Sketcher.Constraint("Symmetric", 0, 2, 2, 2, -1, 1),
    Sketcher.Constraint("Symmetric", 4, 2, 7, 2, -1, 1),
    Sketcher.Constraint("Symmetric", 5, 2, 8, 2, -1, 1),
    Sketcher.Constraint("PointOnObject", 5, 2, -1),
    Sketcher.Constraint("Parallel", 6, 9),
    Sketcher.Constraint("Vertical", 4, 2, 6, 2),
    Sketcher.Constraint("Equal", 3, 0),
    Sketcher.Constraint("Angle", 5, Q("-60 deg")),
    Sketcher.Constraint("DistanceY", 6, 2, 4, 2, 7.0),
    Sketcher.Constraint("DistanceX", 1, 1, 1, 2, 38.142),
    Sketcher.Constraint("DistanceX", 4, 1, 4, 2, 4.041452),
])
pocket3 = body.newObject("PartDesign::Pocket", "Pocket002")
pocket3.Profile = sketch6
pocket3.Length = 3
doc.recompute()

fillet = body.newObject("PartDesign::Fillet", "Fillet")
fillet.Base = (pocket3, edges_at(pocket3, [
    (2.021, -58.8, 3.5),
    (-2.021, -58.8, 3.5),
    (-4.041, -58.8, 0),
    (-2.021, -58.8, -3.5),
    (2.021, -58.8, -3.5),
    (4.041, -58.8, 0),
]))
fillet.Radius = 0.2

# Sketch on XZ plane
sketch7 = body.newObject("Sketcher::SketchObject", "Sketch006")
sketch7.AttachmentSupport = (doc.getObject("XZ_Plane"), [""])
sketch7.MapMode = "FlatFace"
sketch7.AttachmentOffset = App.Placement(Vector(0, 0, 55.8), App.Rotation())
sketch7.addGeometry([
    Part.LineSegment(Vector(-15.5, -8, 0), Vector(-15.5, 8, 0)),
    Part.LineSegment(Vector(-15.5, 8, 0), Vector(4.5, 8, 0)),
    Part.LineSegment(Vector(4.5, 8, 0), Vector(4.5, -8, 0)),
    Part.LineSegment(Vector(4.5, -8, 0), Vector(-15.5, -8, 0)),
], False)
sketch7.addConstraint([
    Sketcher.Constraint("Coincident", 0, 2, 1, 1),
    Sketcher.Constraint("Coincident", 1, 2, 2, 1),
    Sketcher.Constraint("Coincident", 2, 2, 3, 1),
    Sketcher.Constraint("Coincident", 3, 2, 0, 1),
    Sketcher.Constraint("Vertical", 0),
    Sketcher.Constraint("Horizontal", 1),
    Sketcher.Constraint("Vertical", 2),
    Sketcher.Constraint("Horizontal", 3),
    Sketcher.Constraint("DistanceX", 1, 1, 1, 2, 20.0),
    Sketcher.Constraint("DistanceY", 0, 1, 0, 2, 16.0),
    Sketcher.Constraint("DistanceY", -1, 1, 0, 2, 8.0),
    Sketcher.Constraint("DistanceX", 0, 2, -1, 1, 15.5),
])
pad2 = body.newObject("PartDesign::Pad", "Pad001")
pad2.Profile = sketch7
pad2.Length = 11.5
pad2.Reversed = True
doc.recompute()

chamfer = body.newObject("PartDesign::Chamfer", "Chamfer")
chamfer.Base = (pad2, edges_at(pad2, [
    (4.5, -55.8, 0),
    (4.5, -50.05, 8),
    (-5.5, -55.8, -8),
    (4.5, -50.05, -8),
    (-15.5, -55.8, 0),
    (-15.5, -50.05, -8),
    (-5.5, -55.8, 8),
    (-15.5, -50.05, 8),
    (4.5, -44.3, 0),
    (-5.5, -44.3, -8),
    (-15.5, -44.3, 0),
    (-5.5, -44.3, 8),
]))
chamfer.Size = 0.5

# Sketch on XZ plane
sketch8 = body.newObject("Sketcher::SketchObject", "Sketch007")
sketch8.AttachmentSupport = (doc.getObject("XZ_Plane"), [""])
sketch8.MapMode = "FlatFace"
sketch8.AttachmentOffset = App.Placement(Vector(0, 0, 62.3), App.Rotation())
sketch8.addGeometry(Part.Circle(Vector(0, 0, 0), Vector(0, 0, 1), 0.2), False)
sketch8.addConstraint([
    Sketcher.Constraint("Coincident", 0, 3, -1, 1),
    Sketcher.Constraint("Diameter", 0, 0.4),
])
pocket4 = body.newObject("PartDesign::Pocket", "Pocket003")
pocket4.Profile = sketch8
pocket4.Type = "ThroughAll"

# Sketch on XY plane
sketch9 = body.newObject("Sketcher::SketchObject", "Sketch008")
sketch9.AttachmentSupport = (doc.getObject("XY_Plane"), [""])
sketch9.MapMode = "FlatFace"
sketch9.addGeometry([
    Part.LineSegment(Vector(-3, -42.7, 0), Vector(-3, -44.3, 0)),
    Part.LineSegment(Vector(-3, -44.3, 0), Vector(-1.4, -44.3, 0)),
    Part.LineSegment(Vector(-1.4, -44.3, 0), Vector(-1.4, -42.7, 0)),
    Part.LineSegment(Vector(-1.4, -42.7, 0), Vector(-3, -42.7, 0)),
], False)
sketch9.addConstraint([
    Sketcher.Constraint("Coincident", 0, 2, 1, 1),
    Sketcher.Constraint("Coincident", 1, 2, 2, 1),
    Sketcher.Constraint("Coincident", 2, 2, 3, 1),
    Sketcher.Constraint("Coincident", 3, 2, 0, 1),
    Sketcher.Constraint("Vertical", 0),
    Sketcher.Constraint("Horizontal", 1),
    Sketcher.Constraint("Vertical", 2),
    Sketcher.Constraint("Horizontal", 3),
    Sketcher.Constraint("Equal", 3, 0),
    Sketcher.Constraint("DistanceX", 1, 1, 1, 2, 1.6),
    Sketcher.Constraint("DistanceX", 0, 2, -1, 1, 3.0),
    Sketcher.Constraint("DistanceY", 0, 2, -1, 1, 44.3),
])
groove = body.newObject("PartDesign::Groove", "Groove")
groove.Profile = sketch9
groove.ReferenceAxis = (sketch9, ["V_Axis"])
groove.Angle = 360

doc.recompute()
